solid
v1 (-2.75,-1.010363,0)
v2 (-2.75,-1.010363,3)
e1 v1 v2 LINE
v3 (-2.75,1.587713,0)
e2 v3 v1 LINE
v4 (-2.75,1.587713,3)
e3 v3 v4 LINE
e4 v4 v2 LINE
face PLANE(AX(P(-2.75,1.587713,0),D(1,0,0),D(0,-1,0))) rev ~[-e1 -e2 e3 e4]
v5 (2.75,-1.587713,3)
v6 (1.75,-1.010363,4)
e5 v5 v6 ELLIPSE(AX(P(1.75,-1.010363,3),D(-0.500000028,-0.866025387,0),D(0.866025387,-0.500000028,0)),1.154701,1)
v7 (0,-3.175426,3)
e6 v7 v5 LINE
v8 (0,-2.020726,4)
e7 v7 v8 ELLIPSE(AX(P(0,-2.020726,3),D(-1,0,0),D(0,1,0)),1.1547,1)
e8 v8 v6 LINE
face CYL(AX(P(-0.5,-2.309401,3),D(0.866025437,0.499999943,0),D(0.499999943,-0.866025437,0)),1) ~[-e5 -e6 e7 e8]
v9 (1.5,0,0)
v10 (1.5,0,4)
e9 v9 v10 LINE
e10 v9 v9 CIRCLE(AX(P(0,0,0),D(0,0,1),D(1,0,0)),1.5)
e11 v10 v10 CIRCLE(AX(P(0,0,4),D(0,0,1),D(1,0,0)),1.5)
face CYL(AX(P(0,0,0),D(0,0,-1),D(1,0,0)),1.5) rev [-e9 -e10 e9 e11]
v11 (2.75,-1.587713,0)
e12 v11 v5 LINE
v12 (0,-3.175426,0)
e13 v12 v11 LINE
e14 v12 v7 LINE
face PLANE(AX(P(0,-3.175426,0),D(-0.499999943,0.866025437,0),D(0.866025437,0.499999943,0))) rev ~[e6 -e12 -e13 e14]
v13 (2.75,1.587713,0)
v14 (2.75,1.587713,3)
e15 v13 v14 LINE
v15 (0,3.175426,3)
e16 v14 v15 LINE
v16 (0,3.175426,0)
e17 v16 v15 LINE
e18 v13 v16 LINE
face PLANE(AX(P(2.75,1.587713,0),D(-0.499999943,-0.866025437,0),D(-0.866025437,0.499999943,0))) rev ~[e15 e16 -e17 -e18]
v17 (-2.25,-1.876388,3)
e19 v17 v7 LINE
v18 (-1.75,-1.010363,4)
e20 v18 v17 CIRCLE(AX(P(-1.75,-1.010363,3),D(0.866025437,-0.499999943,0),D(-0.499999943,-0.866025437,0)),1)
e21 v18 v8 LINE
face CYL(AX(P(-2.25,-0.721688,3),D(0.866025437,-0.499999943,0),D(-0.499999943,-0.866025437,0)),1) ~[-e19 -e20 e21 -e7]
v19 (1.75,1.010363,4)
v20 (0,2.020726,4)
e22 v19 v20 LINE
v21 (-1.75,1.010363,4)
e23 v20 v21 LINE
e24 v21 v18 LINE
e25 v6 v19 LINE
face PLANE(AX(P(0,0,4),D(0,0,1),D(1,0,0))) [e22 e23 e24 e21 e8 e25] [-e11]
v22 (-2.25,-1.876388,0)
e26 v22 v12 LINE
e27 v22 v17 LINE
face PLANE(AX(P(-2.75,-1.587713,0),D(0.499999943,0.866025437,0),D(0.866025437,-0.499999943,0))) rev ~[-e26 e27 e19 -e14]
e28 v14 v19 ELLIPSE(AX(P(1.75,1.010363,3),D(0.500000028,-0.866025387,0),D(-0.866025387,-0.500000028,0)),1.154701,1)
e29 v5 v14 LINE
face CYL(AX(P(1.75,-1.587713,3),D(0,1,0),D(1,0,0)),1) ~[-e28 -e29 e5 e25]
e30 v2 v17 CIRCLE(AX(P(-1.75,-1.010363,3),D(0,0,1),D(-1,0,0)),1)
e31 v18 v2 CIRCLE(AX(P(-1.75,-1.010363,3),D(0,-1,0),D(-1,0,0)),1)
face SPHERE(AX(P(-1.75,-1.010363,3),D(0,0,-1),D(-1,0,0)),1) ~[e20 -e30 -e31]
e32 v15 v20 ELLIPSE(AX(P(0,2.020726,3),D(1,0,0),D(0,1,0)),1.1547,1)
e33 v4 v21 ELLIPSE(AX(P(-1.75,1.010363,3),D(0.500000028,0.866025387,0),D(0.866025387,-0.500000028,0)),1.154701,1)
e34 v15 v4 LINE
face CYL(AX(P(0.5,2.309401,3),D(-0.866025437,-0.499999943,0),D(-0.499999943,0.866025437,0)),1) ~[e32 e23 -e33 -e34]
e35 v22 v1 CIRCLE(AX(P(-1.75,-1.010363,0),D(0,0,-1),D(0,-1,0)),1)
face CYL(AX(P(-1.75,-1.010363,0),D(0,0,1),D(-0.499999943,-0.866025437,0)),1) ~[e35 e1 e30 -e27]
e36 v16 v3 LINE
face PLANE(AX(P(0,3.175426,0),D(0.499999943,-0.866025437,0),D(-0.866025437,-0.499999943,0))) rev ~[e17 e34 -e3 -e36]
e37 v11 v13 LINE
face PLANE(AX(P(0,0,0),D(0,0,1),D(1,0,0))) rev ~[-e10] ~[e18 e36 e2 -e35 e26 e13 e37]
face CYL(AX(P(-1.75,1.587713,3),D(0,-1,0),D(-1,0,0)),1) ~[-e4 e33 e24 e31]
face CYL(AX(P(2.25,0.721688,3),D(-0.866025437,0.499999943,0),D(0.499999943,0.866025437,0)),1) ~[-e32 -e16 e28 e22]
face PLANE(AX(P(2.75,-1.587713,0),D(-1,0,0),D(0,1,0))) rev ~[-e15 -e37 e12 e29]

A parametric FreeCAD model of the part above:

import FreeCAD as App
import Part
import Sketcher
from FreeCAD import Vector
Q = App.Units.Quantity


def edges_at(feature, points):
    """Names of the edges that pass closest to the given points."""
    edges = feature.Shape.Edges
    near = lambda p: min(range(len(edges)), key=lambda i: edges[i].distToShape(Part.Vertex(*p))[0])
    return sorted({f"Edge{near(p) + 1}" for p in points})

doc = App.newDocument("Part")
body = doc.addObject("PartDesign::Body", "Body")

# Sketch on XY plane
sketch1 = doc.addObject("Sketcher::SketchObject", "Sketch")
body.addObject(sketch1)
sketch1.AttachmentSupport = (doc.XY_Plane, [""])
sketch1.MapMode = "FlatFace"
sketch1.addGeometry(Part.LineSegment(Vector(2.8, -1.6, 0), Vector(2.8, 1.6, 0)), False)
sketch1.addGeometry(Part.LineSegment(Vector(2.8, 1.6, 0), Vector(0, 3.2, 0)), False)
sketch1.addGeometry(Part.LineSegment(Vector(0, 3.2, 0), Vector(-2.8, 1.6, 0)), False)
sketch1.addGeometry(Part.LineSegment(Vector(-2.8, 1.6, 0), Vector(-2.8, -1.6, 0)), False)
sketch1.addGeometry(Part.LineSegment(Vector(-2.8, -1.6, 0), Vector(0, -3.2, 0)), False)
sketch1.addGeometry(Part.LineSegment(Vector(0, -3.2, 0), Vector(2.8, -1.6, 0)), False)
sketch1.addGeometry(Part.Circle(Vector(0, 0, 0), Vector(0, 0, 1), 1.5), False)
sketch1.addConstraint(Sketcher.Constraint("Coincident", 0, 2, 1, 1))
sketch1.addConstraint(Sketcher.Constraint("Coincident", 1, 2, 2, 1))
sketch1.addConstraint(Sketcher.Constraint("Coincident", 2, 2, 3, 1))
sketch1.addConstraint(Sketcher.Constraint("Coincident", 3, 2, 4, 1))
sketch1.addConstraint(Sketcher.Constraint("Coincident", 4, 2, 5, 1))
sketch1.addConstraint(Sketcher.Constraint("Coincident", 5, 2, 0, 1))
sketch1.addConstraint(Sketcher.Constraint("Vertical", 0))
sketch1.addConstraint(Sketcher.Constraint("Vertical", 3))
sketch1.addConstraint(Sketcher.Constraint("Coincident", 6, 3, -1, 1))
sketch1.addConstraint(Sketcher.Constraint("Symmetric", 0, 2, 3, 2, -1, 1))
sketch1.addConstraint(Sketcher.Constraint("Symmetric", 1, 2, 4, 2, -1, 1))
sketch1.addConstraint(Sketcher.Constraint("PointOnObject", 1, 2, -2))
sketch1.addConstraint(Sketcher.Constraint("Parallel", 2, 5))
sketch1.addConstraint(Sketcher.Constraint("Horizontal", 0, 2, 2, 2))
sketch1.addConstraint(Sketcher.Constraint("Diameter", 6, Q("3 mm")))
sketch1.addConstraint(Sketcher.Constraint("Angle", 1, Q("150.000004 deg")))
sketch1.addConstraint(Sketcher.Constraint("DistanceX", 2, 2, 0, 2, Q("5.5 mm")))
sketch1.addConstraint(Sketcher.Constraint("DistanceY", 0, 1, 0, 2, Q("3.175426 mm")))
pad1 = doc.addObject("PartDesign::Pad", "Pad")
body.addObject(pad1)
pad1.Profile = sketch1
pad1.Length = 4
doc.recompute()

fillet = doc.addObject("PartDesign::Fillet", "Fillet")
body.addObject(fillet)
fillet.Base = (pad1, edges_at(pad1, [
    (1.375, 2.382, 4),
    (1.375, -2.382, 4),
    (-2.75, -1.588, 2),
    (-2.75, 0, 4),
    (-1.375, 2.382, 4),
    (2.75, 0, 4),
    (-1.375, -2.382, 4),
]))
fillet.Radius = 1

doc.recompute()
